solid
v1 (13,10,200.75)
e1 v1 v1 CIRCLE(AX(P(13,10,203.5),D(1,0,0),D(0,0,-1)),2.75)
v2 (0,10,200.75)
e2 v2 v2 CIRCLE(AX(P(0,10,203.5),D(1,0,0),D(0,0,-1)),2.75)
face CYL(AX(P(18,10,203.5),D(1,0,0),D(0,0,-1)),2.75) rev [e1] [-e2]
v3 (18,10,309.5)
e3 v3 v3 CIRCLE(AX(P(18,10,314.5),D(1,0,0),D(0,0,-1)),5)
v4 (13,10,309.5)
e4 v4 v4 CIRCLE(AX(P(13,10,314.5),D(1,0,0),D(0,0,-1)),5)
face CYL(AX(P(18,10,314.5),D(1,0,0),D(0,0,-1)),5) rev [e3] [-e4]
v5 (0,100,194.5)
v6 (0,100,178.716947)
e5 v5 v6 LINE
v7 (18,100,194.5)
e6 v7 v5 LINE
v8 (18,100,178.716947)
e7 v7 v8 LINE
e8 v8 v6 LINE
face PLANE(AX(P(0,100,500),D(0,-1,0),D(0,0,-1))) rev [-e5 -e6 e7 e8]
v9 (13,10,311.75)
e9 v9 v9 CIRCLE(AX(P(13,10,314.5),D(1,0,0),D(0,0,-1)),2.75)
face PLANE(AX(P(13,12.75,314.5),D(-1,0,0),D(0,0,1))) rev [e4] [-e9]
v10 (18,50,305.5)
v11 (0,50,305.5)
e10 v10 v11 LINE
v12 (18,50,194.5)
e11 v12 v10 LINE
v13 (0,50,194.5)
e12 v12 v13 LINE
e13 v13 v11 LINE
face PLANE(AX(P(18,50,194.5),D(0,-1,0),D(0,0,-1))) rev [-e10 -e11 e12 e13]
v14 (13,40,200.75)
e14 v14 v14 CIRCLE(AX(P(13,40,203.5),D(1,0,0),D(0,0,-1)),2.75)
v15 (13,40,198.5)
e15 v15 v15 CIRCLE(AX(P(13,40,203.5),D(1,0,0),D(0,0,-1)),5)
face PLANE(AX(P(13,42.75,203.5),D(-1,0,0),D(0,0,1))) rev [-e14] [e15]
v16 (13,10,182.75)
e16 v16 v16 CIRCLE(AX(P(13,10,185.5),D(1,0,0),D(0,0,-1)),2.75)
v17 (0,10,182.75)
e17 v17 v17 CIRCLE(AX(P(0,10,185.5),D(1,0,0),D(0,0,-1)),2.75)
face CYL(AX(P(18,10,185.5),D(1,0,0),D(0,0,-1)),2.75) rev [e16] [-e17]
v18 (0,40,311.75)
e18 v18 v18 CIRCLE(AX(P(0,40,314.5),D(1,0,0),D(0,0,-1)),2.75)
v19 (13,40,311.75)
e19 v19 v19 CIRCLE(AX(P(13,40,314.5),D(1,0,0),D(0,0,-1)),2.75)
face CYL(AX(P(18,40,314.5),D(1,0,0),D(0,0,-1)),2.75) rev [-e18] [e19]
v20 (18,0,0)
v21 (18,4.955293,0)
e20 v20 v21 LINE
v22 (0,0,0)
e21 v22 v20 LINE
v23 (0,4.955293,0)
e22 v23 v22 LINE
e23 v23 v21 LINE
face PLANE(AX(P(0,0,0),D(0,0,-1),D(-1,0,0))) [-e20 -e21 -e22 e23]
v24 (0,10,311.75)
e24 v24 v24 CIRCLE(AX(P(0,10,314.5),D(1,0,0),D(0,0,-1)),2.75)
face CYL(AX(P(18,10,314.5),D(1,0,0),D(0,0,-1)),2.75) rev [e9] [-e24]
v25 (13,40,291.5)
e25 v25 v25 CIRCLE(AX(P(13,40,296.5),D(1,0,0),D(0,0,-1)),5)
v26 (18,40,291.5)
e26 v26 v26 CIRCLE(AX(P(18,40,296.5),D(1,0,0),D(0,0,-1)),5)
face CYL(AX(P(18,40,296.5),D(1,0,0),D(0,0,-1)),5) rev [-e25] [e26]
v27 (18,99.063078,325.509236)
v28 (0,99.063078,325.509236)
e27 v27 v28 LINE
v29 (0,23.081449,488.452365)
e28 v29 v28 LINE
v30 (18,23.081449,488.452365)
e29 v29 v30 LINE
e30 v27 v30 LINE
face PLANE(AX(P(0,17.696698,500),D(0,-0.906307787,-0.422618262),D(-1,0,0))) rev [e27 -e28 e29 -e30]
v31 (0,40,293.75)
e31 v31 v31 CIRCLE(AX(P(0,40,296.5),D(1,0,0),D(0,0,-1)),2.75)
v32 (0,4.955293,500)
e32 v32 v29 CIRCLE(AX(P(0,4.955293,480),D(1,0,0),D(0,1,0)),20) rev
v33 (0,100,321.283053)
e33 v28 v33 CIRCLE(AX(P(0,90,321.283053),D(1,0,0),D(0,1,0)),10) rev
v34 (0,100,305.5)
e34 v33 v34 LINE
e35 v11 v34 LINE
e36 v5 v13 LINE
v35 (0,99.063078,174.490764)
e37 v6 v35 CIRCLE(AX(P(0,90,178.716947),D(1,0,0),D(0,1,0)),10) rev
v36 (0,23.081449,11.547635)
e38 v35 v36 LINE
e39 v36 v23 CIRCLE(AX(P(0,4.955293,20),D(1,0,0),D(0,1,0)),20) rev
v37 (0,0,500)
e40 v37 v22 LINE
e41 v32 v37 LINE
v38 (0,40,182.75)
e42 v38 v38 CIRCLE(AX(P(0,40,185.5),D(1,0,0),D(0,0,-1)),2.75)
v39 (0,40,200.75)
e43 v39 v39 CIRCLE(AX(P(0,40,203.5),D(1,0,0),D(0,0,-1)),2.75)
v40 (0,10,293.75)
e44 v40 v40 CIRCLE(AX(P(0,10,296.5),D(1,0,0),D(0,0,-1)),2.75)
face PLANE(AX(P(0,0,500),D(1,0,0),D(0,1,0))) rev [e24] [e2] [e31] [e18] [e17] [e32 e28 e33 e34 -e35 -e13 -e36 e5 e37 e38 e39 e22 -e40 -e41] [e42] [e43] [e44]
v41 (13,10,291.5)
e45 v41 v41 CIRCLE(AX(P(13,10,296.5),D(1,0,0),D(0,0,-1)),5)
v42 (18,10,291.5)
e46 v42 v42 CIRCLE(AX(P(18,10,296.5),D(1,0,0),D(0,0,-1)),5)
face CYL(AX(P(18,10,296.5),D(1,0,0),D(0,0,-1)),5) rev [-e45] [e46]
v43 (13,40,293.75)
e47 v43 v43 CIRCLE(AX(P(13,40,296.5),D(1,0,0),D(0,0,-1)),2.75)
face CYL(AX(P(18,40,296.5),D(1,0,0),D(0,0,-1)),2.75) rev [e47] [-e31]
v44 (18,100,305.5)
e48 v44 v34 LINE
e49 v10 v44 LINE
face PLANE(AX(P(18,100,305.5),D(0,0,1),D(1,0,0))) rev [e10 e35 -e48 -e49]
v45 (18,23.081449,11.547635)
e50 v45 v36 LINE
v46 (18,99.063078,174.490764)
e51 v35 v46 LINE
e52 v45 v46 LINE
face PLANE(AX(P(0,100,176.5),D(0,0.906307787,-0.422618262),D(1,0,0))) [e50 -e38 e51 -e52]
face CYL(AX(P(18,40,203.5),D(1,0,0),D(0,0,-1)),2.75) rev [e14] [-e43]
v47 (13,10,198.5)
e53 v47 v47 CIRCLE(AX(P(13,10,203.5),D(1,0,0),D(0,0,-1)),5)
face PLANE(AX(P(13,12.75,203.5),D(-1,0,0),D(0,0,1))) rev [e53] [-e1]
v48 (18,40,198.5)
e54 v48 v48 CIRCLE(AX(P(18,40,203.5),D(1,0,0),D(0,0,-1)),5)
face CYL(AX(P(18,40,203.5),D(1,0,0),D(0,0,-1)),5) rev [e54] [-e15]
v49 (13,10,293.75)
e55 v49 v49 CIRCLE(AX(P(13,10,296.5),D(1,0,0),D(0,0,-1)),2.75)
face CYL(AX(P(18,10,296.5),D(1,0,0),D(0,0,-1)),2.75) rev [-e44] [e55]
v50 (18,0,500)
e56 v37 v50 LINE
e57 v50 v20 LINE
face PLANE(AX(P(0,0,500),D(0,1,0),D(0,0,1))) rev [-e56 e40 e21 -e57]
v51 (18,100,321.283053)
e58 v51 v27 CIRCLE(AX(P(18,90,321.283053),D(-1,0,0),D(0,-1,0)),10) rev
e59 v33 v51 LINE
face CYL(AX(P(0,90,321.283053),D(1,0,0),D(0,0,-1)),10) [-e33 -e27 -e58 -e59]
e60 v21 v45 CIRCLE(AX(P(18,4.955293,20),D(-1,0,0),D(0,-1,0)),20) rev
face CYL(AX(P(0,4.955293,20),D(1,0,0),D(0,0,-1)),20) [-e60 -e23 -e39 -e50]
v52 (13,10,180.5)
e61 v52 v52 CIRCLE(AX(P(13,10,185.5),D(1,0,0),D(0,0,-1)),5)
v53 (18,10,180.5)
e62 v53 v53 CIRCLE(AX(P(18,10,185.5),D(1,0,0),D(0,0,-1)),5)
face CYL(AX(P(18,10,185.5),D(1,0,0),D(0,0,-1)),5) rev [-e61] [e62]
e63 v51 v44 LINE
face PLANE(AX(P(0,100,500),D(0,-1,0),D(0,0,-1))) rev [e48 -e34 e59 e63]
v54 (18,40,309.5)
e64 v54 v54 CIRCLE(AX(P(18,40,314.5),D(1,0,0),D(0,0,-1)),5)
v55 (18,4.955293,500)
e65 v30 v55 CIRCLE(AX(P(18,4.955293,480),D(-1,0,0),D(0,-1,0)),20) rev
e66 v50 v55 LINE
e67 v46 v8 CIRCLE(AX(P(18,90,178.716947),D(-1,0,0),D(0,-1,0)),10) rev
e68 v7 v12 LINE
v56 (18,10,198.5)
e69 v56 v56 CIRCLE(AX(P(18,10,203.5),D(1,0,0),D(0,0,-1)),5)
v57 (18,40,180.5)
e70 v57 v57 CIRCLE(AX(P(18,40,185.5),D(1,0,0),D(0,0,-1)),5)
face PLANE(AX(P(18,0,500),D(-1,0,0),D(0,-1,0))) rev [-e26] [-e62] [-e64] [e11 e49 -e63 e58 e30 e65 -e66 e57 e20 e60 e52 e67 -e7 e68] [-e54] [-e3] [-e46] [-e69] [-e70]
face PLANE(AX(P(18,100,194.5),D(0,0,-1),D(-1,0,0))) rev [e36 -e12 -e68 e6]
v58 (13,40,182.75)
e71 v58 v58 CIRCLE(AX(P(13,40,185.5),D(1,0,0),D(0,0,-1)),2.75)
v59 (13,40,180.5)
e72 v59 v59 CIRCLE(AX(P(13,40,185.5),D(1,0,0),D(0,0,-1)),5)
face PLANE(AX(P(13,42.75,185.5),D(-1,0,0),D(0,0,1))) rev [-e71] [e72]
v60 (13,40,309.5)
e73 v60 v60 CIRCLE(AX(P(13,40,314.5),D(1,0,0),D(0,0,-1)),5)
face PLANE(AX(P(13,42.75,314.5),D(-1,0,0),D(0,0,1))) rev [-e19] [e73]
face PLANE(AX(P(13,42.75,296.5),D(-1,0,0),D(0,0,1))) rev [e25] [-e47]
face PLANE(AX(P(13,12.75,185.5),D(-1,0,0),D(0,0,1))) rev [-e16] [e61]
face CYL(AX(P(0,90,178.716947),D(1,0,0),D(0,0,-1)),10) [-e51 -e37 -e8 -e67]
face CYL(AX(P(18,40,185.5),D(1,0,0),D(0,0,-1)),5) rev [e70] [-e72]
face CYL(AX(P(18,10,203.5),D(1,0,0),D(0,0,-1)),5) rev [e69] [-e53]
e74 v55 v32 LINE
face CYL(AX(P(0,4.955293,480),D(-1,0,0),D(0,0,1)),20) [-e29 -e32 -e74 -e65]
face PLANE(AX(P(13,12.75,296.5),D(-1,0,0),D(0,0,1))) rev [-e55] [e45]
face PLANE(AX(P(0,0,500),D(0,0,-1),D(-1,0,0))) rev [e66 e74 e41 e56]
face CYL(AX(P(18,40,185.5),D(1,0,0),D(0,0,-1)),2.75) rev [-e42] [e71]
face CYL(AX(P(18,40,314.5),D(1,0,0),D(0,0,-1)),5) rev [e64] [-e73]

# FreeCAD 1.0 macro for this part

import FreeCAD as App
import Part
import Sketcher


def edges_at(feature, points):
    """Names of the edges that pass closest to the given points."""
    edges = feature.Shape.Edges
    near = lambda p: min(range(len(edges)), key=lambda i: edges[i].distToShape(Part.Vertex(*p))[0])
    return sorted({f"Edge{near(p) + 1}" for p in points})

doc = App.newDocument("Part")
params = doc.addObject("Spreadsheet::Sheet", "Params")
for row, (alias, value) in enumerate([
    ("sketch1_width", "18 mm"),
    ("sketch1_height", "100 mm"),
    ("pad1_length", "500 mm"),
    ("sketch2_width", "50 mm"),
    ("sketch2_height", "111 mm"),
    ("sketch3_diameter", "5.5 mm"),
    ("hole_diameter", "5.5 mm"),
    ("hole_cbore_diameter", "10 mm"),
    ("hole_cbore_depth", "5 mm"),
    ("chamfer_size", "176.5 mm"),
    ("chamfer_size2", "82.303302 mm"),
    ("chamfer2_size", "176.5 mm"),
    ("chamfer2_size2", "82.303302 mm"),
    ("fillet_radius", "20 mm"),
    ("sketch4_diameter", "5.5 mm"),
    ("hole2_diameter", "5.5 mm"),
    ("hole2_cbore_diameter", "10 mm"),
    ("hole2_cbore_depth", "5 mm"),
    ("fillet2_radius", "10 mm"),
], start=1):
    params.set(f"A{row}", alias)
    params.set(f"B{row}", "=" + value)
    params.setAlias(f"B{row}", alias)

body = doc.addObject("PartDesign::Body", "Body")

sketch1 = body.newObject("Sketcher::SketchObject", "Sketch")
sketch1.AttachmentSupport = (doc.getObject("XY_Plane"), [""])
sketch1.MapMode = "FlatFace"
sketch1.addGeometry([
    Part.LineSegment(App.Vector(0, 100, 0), App.Vector(0, 0, 0)),
    Part.LineSegment(App.Vector(0, 0, 0), App.Vector(18, 0, 0)),
    Part.LineSegment(App.Vector(18, 0, 0), App.Vector(18, 100, 0)),
    Part.LineSegment(App.Vector(18, 100, 0), App.Vector(0, 100, 0)),
], False)
sketch1.addConstraint([
    Sketcher.Constraint("Coincident", 0, 2, 1, 1),
    Sketcher.Constraint("Coincident", 1, 2, 2, 1),
    Sketcher.Constraint("Coincident", 2, 2, 3, 1),
    Sketcher.Constraint("Coincident", 3, 2, 0, 1),
    Sketcher.Constraint("Vertical", 0),
    Sketcher.Constraint("Horizontal", 1),
    Sketcher.Constraint("Vertical", 2),
    Sketcher.Constraint("Horizontal", 3),
    Sketcher.Constraint("Coincident", 0, 2, -1, 1),
    Sketcher.Constraint("DistanceX", 1, 1, 1, 2, 18.0),
    Sketcher.Constraint("DistanceY", 0, 2, 0, 1, 100.0),
])
sketch1.setExpression("Constraints[9]", "Params.sketch1_width")
sketch1.setExpression("Constraints[10]", "Params.sketch1_height")
pad1 = body.newObject("PartDesign::Pad", "Pad")
pad1.Profile = sketch1
pad1.setExpression("Length", "Params.pad1_length")

sketch2 = body.newObject("Sketcher::SketchObject", "Sketch001")
sketch2.AttachmentSupport = (doc.getObject("YZ_Plane"), [""])
sketch2.MapMode = "FlatFace"
sketch2.addGeometry([
    Part.LineSegment(App.Vector(100, 194, 0), App.Vector(50, 194, 0)),
    Part.LineSegment(App.Vector(50, 194, 0), App.Vector(50, 306, 0)),
    Part.LineSegment(App.Vector(50, 306, 0), App.Vector(100, 306, 0)),
    Part.LineSegment(App.Vector(100, 306, 0), App.Vector(100, 194, 0)),
], False)
sketch2.addConstraint([
    Sketcher.Constraint("Coincident", 0, 2, 1, 1),
    Sketcher.Constraint("Coincident", 1, 2, 2, 1),
    Sketcher.Constraint("Coincident", 2, 2, 3, 1),
    Sketcher.Constraint("Coincident", 3, 2, 0, 1),
    Sketcher.Constraint("Horizontal", 0),
    Sketcher.Constraint("Vertical", 1),
    Sketcher.Constraint("Horizontal", 2),
    Sketcher.Constraint("Vertical", 3),
    Sketcher.Constraint("DistanceX", 0, 2, 0, 1, 50.0),
    Sketcher.Constraint("DistanceY", 1, 1, 1, 2, 111.0),
    Sketcher.Constraint("DistanceX", -1, 1, 0, 2, 50.0),
    Sketcher.Constraint("DistanceY", -1, 1, 0, 2, 194.5),
])
sketch2.setExpression("Constraints[8]", "Params.sketch2_width")
sketch2.setExpression("Constraints[9]", "Params.sketch2_height")
pocket1 = body.newObject("PartDesign::Pocket", "Pocket")
pocket1.Profile = sketch2
pocket1.Type = "ThroughAll"
pocket1.Reversed = True

sketch3 = body.newObject("Sketcher::SketchObject", "Sketch002")
sketch3.AttachmentSupport = (doc.getObject("YZ_Plane"), [""])
sketch3.MapMode = "FlatFace"
sketch3.AttachmentOffset = App.Placement(App.Vector(0, 0, 18), App.Rotation())
sketch3.addGeometry([
    Part.Circle(App.Vector(40, 296.5, 0), App.Vector(0, 0, 1), 2.8),
    Part.Circle(App.Vector(10, 203.5, 0), App.Vector(0, 0, 1), 2.8),
    Part.Circle(App.Vector(10, 296.5, 0), App.Vector(0, 0, 1), 2.8),
    Part.Circle(App.Vector(40, 203.5, 0), App.Vector(0, 0, 1), 2.8),
], False)
sketch3.addConstraint([
    Sketcher.Constraint("Equal", 0, 1),
    Sketcher.Constraint("Equal", 1, 2),
    Sketcher.Constraint("Equal", 2, 3),
    Sketcher.Constraint("Horizontal", 0, 3, 2, 3),
    Sketcher.Constraint("Horizontal", 1, 3, 3, 3),
    Sketcher.Constraint("Vertical", 1, 3, 2, 3),
    Sketcher.Constraint("Vertical", 0, 3, 3, 3),
    Sketcher.Constraint("Diameter", 0, 5.5),
    Sketcher.Constraint("DistanceX", -1, 1, 0, 3, 40.0),
    Sketcher.Constraint("DistanceX", -1, 1, 1, 3, 10.0),
    Sketcher.Constraint("DistanceY", 1, 3, 0, 3, 93.0),
    Sketcher.Constraint("DistanceY", -1, 1, 0, 3, 296.5),
])
sketch3.setExpression("Constraints[7]", "Params.sketch3_diameter")
doc.recompute()
hole = body.newObject("PartDesign::Hole", "Hole")
hole.Profile = sketch3
hole.ThreadType = "None"
hole.setExpression("Diameter", "Params.hole_diameter")
hole.DepthType = "ThroughAll"
hole.HoleCutType = "Counterbore"
hole.setExpression("HoleCutDiameter", "Params.hole_cbore_diameter")
hole.setExpression("HoleCutDepth", "Params.hole_cbore_depth")
doc.recompute()

chamfer = body.newObject("PartDesign::Chamfer", "Chamfer")
chamfer.Base = (hole, edges_at(hole, [(9, 100, 0)]))
chamfer.ChamferType = "Two distances"
chamfer.setExpression("Size", "Params.chamfer_size")
chamfer.setExpression("Size2", "Params.chamfer_size2")
chamfer.FlipDirection = True
doc.recompute()

chamfer2 = body.newObject("PartDesign::Chamfer", "Chamfer001")
chamfer2.Base = (chamfer, edges_at(chamfer, [(9, 100, 500)]))
chamfer2.ChamferType = "Two distances"
chamfer2.setExpression("Size", "Params.chamfer2_size")
chamfer2.setExpression("Size2", "Params.chamfer2_size2")
chamfer2.FlipDirection = True
doc.recompute()

fillet = body.newObject("PartDesign::Fillet", "Fillet")
fillet.Base = (chamfer2, edges_at(chamfer2, [(9, 17.697, 0), (9, 17.697, 500)]))
fillet.setExpression("Radius", "Params.fillet_radius")

sketch4 = body.newObject("Sketcher::SketchObject", "Sketch003")
sketch4.AttachmentSupport = (doc.getObject("YZ_Plane"), [""])
sketch4.MapMode = "FlatFace"
sketch4.AttachmentOffset = App.Placement(App.Vector(0, 0, 18), App.Rotation())
sketch4.addGeometry([
    Part.Circle(App.Vector(40, 314.5, 0), App.Vector(0, 0, 1), 2.8),
    Part.Circle(App.Vector(10, 314.5, 0), App.Vector(0, 0, 1), 2.8),
], False)
sketch4.addConstraint([
    Sketcher.Constraint("Equal", 0, 1),
    Sketcher.Constraint("Horizontal", 0, 3, 1, 3),
    Sketcher.Constraint("Diameter", 0, 5.5),
    Sketcher.Constraint("DistanceX", -1, 1, 0, 3, 40.0),
    Sketcher.Constraint("DistanceX", -1, 1, 1, 3, 10.0),
    Sketcher.Constraint("DistanceY", -1, 1, 0, 3, 314.5),
])
sketch4.setExpression("Constraints[2]", "Params.sketch4_diameter")
doc.recompute()
hole2 = body.newObject("PartDesign::Hole", "Hole001")
hole2.Profile = sketch4
hole2.ThreadType = "None"
hole2.setExpression("Diameter", "Params.hole2_diameter")
hole2.DepthType = "ThroughAll"
hole2.HoleCutType = "Counterbore"
hole2.setExpression("HoleCutDiameter", "Params.hole2_cbore_diameter")
hole2.setExpression("HoleCutDepth", "Params.hole2_cbore_depth")
doc.recompute()

datumplane = body.newObject("PartDesign::Plane", "DatumPlane")
datumplane.AttachmentSupport = (doc.getObject("XY_Plane"), [""])
datumplane.MapMode = "FlatFace"
datumplane.AttachmentOffset = App.Placement(App.Vector(0, 0, 250), App.Rotation())
mirrored = body.newObject("PartDesign::Mirrored", "Mirrored")
mirrored.Originals = [hole2]
mirrored.MirrorPlane = (datumplane, [""])
body.Tip = mirrored
doc.recompute()

fillet2 = body.newObject("PartDesign::Fillet", "Fillet001")
fillet2.Base = (mirrored, edges_at(mirrored, [(9, 100, 176.5), (9, 100, 323.5)]))
fillet2.setExpression("Radius", "Params.fillet2_radius")

doc.recompute()
